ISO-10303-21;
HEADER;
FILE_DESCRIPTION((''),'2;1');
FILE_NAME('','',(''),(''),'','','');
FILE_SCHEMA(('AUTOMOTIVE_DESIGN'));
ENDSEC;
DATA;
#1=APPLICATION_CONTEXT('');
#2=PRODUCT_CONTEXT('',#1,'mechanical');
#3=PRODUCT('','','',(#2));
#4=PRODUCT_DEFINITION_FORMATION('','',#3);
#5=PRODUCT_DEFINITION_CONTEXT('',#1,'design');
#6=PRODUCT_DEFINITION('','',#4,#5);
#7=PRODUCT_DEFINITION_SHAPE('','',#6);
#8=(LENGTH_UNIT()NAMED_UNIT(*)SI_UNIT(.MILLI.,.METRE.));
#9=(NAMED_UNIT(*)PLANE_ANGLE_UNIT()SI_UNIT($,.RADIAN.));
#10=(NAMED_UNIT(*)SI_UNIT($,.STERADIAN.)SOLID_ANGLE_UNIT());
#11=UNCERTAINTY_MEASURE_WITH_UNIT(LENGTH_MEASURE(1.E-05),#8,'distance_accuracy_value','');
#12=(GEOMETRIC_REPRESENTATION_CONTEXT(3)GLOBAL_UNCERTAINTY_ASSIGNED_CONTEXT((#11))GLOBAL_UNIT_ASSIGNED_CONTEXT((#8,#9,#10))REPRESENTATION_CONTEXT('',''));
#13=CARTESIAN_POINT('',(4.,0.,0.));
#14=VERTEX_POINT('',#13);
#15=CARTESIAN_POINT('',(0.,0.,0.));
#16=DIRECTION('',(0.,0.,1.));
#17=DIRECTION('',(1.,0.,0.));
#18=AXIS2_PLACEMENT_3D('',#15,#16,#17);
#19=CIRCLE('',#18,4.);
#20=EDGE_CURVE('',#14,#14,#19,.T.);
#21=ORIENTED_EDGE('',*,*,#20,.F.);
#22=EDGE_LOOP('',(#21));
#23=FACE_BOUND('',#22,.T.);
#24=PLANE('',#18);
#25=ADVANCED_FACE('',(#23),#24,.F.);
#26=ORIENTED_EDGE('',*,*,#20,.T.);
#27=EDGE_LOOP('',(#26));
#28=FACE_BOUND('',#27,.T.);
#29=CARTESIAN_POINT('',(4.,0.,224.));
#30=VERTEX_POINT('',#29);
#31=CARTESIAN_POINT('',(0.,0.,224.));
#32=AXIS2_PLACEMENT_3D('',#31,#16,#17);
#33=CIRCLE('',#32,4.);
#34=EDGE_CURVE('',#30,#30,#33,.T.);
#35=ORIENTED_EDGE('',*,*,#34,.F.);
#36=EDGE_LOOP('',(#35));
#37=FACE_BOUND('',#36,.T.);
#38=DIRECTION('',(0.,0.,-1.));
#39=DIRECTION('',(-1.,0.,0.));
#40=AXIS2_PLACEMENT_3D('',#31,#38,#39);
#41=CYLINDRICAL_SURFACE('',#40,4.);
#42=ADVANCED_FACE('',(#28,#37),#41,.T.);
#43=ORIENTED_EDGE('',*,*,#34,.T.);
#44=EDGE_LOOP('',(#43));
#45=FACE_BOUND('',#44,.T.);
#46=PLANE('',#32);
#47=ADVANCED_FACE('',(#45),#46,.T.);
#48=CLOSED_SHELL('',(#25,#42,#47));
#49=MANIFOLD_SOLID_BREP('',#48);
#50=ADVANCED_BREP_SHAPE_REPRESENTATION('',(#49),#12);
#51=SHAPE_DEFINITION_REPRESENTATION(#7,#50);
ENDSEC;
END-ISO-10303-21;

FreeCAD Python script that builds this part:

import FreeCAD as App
import Part
import Sketcher

V = App.Vector
Q = App.Units.Quantity

doc = App.newDocument("Part")
body = doc.addObject("PartDesign::Body", "Body")

# Sketch on XY plane
sketch1 = body.newObject("Sketcher::SketchObject", "Sketch")
sketch1.AttachmentSupport = (doc.getObject("XY_Plane"), [""])
sketch1.MapMode = "FlatFace"
sketch1.addGeometry(Part.Circle(V(0, 0, 0), V(0, 0, 1), 4), False)
sketch1.addConstraint([
    Sketcher.Constraint("Coincident", 0, 3, -1, 1),
    Sketcher.Constraint("Diameter", 0, Q("8 mm")),
])
pad1 = body.newObject("PartDesign::Pad", "Pad")
pad1.Profile = sketch1
pad1.Length = 224

doc.recompute()
